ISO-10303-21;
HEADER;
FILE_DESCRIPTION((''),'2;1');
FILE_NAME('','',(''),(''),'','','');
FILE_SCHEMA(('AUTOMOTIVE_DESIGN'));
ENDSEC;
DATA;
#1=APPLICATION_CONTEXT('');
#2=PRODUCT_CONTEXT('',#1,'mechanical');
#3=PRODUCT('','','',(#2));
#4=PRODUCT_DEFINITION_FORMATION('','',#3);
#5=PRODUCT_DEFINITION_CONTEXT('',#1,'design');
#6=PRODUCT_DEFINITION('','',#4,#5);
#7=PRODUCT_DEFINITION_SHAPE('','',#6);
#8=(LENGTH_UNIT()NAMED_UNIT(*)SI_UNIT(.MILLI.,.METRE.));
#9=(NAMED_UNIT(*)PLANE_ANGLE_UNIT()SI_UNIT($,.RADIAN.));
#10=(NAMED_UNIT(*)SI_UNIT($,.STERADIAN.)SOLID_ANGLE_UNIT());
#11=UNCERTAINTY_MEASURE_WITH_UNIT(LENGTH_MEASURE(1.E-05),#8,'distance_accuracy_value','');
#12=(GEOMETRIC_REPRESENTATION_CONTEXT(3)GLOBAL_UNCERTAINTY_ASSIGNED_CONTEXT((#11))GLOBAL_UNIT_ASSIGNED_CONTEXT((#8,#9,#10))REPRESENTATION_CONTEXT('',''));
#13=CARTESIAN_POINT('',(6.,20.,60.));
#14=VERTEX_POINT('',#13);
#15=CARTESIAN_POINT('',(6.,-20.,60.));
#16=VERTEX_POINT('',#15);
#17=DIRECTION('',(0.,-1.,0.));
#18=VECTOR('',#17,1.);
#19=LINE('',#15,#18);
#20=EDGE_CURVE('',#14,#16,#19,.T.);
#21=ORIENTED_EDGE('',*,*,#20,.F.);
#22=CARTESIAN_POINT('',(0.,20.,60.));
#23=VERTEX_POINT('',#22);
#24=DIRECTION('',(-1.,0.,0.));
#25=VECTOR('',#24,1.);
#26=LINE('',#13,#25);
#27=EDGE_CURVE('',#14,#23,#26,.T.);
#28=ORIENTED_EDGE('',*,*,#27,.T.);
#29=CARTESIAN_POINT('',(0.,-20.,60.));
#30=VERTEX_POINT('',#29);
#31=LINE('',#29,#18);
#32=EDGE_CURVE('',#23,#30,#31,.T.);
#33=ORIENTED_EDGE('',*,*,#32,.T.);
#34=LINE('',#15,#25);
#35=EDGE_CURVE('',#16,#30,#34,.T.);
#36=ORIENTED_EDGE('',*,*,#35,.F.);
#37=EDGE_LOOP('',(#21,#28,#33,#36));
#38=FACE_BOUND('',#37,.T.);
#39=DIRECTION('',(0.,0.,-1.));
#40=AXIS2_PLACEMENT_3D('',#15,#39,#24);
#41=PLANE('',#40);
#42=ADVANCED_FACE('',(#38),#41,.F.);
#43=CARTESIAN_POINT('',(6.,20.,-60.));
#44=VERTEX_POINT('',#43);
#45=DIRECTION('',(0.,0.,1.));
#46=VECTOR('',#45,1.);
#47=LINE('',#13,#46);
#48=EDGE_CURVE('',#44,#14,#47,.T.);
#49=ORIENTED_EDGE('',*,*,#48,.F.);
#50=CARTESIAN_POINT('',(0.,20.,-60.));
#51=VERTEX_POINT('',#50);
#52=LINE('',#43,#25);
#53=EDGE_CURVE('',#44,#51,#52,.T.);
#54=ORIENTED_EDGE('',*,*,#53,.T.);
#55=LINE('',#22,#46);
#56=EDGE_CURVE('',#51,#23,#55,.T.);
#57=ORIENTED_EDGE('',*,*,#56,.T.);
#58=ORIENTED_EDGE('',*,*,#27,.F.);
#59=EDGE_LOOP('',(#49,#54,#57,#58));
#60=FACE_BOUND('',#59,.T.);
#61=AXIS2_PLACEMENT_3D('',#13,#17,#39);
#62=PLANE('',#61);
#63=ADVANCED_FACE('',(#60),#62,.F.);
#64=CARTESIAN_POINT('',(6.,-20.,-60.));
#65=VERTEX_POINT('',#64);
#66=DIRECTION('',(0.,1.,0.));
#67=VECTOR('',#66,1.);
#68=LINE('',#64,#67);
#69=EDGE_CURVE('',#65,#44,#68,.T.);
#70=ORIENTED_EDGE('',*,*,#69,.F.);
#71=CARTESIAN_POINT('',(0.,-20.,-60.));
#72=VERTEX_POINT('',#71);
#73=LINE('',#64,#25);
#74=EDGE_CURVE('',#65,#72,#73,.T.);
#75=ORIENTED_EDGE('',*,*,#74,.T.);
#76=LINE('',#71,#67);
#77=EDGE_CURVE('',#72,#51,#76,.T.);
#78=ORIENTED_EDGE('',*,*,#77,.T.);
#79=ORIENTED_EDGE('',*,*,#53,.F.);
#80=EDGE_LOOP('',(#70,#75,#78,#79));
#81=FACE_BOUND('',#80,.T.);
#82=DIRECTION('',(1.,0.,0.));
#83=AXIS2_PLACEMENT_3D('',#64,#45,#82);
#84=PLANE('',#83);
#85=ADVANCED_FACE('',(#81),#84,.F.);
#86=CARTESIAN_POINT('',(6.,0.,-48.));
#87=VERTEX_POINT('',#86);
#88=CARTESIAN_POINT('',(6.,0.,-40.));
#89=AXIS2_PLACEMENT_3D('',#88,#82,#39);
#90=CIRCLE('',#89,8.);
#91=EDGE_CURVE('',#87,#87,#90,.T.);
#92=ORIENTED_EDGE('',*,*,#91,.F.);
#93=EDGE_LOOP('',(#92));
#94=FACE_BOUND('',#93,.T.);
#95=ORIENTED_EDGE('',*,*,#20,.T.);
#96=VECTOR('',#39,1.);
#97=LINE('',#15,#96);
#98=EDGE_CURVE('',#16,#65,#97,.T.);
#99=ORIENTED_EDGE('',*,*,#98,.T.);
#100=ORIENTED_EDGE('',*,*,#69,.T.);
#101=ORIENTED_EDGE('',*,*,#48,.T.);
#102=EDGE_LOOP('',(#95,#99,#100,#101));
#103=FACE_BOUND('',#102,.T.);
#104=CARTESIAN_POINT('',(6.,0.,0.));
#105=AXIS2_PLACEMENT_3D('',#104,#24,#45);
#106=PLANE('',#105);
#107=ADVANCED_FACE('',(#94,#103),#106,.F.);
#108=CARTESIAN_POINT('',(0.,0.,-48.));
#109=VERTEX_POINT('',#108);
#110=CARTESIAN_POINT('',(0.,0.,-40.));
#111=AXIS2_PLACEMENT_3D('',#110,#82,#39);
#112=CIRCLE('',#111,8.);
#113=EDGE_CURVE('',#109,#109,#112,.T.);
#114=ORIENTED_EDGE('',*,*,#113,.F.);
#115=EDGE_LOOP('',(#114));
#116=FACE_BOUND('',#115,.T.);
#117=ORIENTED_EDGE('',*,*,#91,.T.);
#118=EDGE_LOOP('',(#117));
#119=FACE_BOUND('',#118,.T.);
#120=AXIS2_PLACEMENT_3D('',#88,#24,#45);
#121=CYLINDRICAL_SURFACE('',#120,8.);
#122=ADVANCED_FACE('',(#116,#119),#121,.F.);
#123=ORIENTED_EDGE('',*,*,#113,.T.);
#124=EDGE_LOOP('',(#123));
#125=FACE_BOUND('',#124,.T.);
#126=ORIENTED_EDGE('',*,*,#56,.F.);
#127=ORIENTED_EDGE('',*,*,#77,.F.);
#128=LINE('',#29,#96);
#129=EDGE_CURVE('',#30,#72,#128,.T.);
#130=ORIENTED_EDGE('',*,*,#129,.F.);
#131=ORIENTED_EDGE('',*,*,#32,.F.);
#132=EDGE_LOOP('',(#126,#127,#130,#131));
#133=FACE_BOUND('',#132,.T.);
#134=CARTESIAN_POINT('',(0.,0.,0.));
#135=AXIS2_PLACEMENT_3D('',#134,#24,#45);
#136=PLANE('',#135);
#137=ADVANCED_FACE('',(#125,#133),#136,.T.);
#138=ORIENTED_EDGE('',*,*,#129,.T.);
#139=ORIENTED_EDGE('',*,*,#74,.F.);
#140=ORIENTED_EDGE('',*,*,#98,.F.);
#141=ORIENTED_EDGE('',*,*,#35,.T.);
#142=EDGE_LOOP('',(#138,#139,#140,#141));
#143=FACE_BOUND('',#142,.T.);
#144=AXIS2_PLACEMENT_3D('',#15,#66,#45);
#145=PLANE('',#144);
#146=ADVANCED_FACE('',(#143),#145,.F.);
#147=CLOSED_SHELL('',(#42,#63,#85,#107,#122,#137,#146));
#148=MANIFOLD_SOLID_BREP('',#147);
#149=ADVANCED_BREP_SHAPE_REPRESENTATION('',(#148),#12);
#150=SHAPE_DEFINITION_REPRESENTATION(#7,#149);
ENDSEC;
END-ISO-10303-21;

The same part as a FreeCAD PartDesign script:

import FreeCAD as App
import Part
import Sketcher
from FreeCAD import Vector

doc = App.newDocument("Part")
body = doc.addObject("PartDesign::Body", "Body")

# Sketch on YZ plane
sketch1 = doc.addObject("Sketcher::SketchObject", "Sketch")
body.addObject(sketch1)
sketch1.AttachmentSupport = (doc.YZ_Plane, [""])
sketch1.MapMode = "FlatFace"
sketch1.addGeometry([
    Part.LineSegment(Vector(20, 60, 0), Vector(-20, 60, 0)),  # 0
    Part.LineSegment(Vector(-20, 60, 0), Vector(-20, -60, 0)),  # 1
    Part.LineSegment(Vector(-20, -60, 0), Vector(20, -60, 0)),  # 2
    Part.LineSegment(Vector(20, -60, 0), Vector(20, 60, 0)),  # 3
    Part.Circle(Vector(0, -40, 0), Vector(0, 0, 1), 8),  # 4
], False)
sketch1.addConstraint([
    Sketcher.Constraint("Coincident", 0, 2, 1, 1),
    Sketcher.Constraint("Coincident", 1, 2, 2, 1),
    Sketcher.Constraint("Coincident", 2, 2, 3, 1),
    Sketcher.Constraint("Coincident", 3, 2, 0, 1),
    Sketcher.Constraint("Horizontal", 0),
    Sketcher.Constraint("Vertical", 1),
    Sketcher.Constraint("Horizontal", 2),
    Sketcher.Constraint("Vertical", 3),
    Sketcher.Constraint("Symmetric", 0, 2, 2, 2, -1, 1),
    Sketcher.Constraint("PointOnObject", 4, 3, -2),
    Sketcher.Constraint("Diameter", 4, 16.0),
    Sketcher.Constraint("DistanceX", 0, 2, 0, 1, 40.0),
    Sketcher.Constraint("DistanceY", 1, 2, 1, 1, 120.0),
    Sketcher.Constraint("DistanceY", 4, 3, -1, 1, 40.0),
])
pad1 = doc.addObject("PartDesign::Pad", "Pad")
body.addObject(pad1)
pad1.Profile = sketch1
pad1.Length = 6

doc.recompute()
